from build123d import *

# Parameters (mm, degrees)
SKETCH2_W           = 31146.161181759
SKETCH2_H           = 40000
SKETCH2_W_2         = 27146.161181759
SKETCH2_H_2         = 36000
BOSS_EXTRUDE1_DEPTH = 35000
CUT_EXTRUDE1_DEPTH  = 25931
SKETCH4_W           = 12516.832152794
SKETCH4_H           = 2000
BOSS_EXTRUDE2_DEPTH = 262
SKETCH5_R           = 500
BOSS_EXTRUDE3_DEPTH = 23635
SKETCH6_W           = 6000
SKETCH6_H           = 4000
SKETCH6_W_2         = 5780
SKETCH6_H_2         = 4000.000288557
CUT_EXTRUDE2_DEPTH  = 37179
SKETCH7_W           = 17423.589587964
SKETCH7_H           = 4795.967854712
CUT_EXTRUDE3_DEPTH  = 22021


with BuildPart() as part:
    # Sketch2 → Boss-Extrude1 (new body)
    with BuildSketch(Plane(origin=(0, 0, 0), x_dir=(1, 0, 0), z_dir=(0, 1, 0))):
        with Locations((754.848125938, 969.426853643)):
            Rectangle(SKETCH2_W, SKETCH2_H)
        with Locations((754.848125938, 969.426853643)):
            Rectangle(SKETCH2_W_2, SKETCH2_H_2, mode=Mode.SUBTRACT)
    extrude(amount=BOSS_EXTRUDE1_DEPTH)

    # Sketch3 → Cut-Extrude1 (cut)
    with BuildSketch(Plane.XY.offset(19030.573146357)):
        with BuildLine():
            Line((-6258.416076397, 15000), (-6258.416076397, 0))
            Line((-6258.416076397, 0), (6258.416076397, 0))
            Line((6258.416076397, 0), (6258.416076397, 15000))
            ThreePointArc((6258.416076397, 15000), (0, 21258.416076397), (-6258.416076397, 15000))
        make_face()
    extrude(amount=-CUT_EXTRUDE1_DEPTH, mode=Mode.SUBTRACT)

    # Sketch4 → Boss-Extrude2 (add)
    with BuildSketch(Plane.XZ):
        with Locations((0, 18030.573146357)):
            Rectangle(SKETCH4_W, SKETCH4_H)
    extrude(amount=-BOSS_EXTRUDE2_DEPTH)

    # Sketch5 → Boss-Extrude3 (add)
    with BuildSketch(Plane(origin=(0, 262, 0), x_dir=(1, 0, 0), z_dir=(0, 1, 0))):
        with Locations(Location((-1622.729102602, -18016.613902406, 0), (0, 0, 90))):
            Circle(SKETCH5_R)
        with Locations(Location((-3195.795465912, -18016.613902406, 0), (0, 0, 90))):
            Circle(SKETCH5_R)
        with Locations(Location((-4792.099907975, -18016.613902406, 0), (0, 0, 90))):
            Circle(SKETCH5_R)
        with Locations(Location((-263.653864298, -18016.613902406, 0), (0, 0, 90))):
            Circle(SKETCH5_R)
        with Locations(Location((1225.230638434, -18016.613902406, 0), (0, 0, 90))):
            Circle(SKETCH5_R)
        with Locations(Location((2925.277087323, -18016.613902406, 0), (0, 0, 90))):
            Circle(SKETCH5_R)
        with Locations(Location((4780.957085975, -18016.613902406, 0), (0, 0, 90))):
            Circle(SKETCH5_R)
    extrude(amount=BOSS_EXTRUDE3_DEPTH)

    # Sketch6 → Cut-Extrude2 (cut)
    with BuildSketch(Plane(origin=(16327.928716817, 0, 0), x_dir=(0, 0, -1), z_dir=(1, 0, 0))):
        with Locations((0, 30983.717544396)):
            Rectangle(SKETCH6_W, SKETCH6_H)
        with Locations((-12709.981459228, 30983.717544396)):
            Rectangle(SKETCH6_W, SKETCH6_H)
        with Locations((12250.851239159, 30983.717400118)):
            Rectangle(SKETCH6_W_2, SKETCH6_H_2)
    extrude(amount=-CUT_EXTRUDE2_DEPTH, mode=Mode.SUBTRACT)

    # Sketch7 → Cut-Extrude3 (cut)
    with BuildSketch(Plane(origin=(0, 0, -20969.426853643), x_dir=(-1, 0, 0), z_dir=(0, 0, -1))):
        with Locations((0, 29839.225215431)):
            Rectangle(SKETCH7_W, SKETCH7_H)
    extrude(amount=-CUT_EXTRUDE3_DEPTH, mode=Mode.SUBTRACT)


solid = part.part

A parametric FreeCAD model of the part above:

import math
import FreeCAD as App
import Part
import Sketcher

V = App.Vector
Q = App.Units.Quantity

doc = App.newDocument("Part")
body = doc.addObject("PartDesign::Body", "Body")

sketch1 = body.newObject("Sketcher::SketchObject", "Sketch")
sketch1.AttachmentSupport = (doc.getObject("XZ_Plane"), [""])
sketch1.MapMode = "FlatFace"
sketch1.addGeometry([
    Part.LineSegment(V(-14818, -20969, 0), V(-14818, 19031, 0)),
    Part.LineSegment(V(-14818, 19031, 0), V(16328, 19031, 0)),
    Part.LineSegment(V(16328, 19031, 0), V(16328, -20969, 0)),
    Part.LineSegment(V(16328, -20969, 0), V(-14818, -20969, 0)),
    Part.LineSegment(V(14328, 17031, 0), V(-12818, 17031, 0)),
    Part.LineSegment(V(-12818, 17031, 0), V(-12818, -18969, 0)),
    Part.LineSegment(V(-12818, -18969, 0), V(14328, -18969, 0)),
    Part.LineSegment(V(14328, -18969, 0), V(14328, 17031, 0)),
], False)
sketch1.addConstraint([
    Sketcher.Constraint("Coincident", 0, 2, 1, 1),
    Sketcher.Constraint("Coincident", 1, 2, 2, 1),
    Sketcher.Constraint("Coincident", 2, 2, 3, 1),
    Sketcher.Constraint("Coincident", 3, 2, 0, 1),
    Sketcher.Constraint("Coincident", 4, 2, 5, 1),
    Sketcher.Constraint("Coincident", 5, 2, 6, 1),
    Sketcher.Constraint("Coincident", 6, 2, 7, 1),
    Sketcher.Constraint("Coincident", 7, 2, 4, 1),
    Sketcher.Constraint("Vertical", 0),
    Sketcher.Constraint("Horizontal", 1),
    Sketcher.Constraint("Vertical", 2),
    Sketcher.Constraint("Horizontal", 3),
    Sketcher.Constraint("Horizontal", 4),
    Sketcher.Constraint("Vertical", 5),
    Sketcher.Constraint("Horizontal", 6),
    Sketcher.Constraint("Vertical", 7),
    Sketcher.Constraint("DistanceY", 0, 1, 0, 2, Q("40000 mm")),
    Sketcher.Constraint("DistanceY", 5, 2, 5, 1, Q("36000 mm")),
    Sketcher.Constraint("DistanceX", 0, 2, 4, 2, Q("2000 mm")),
    Sketcher.Constraint("DistanceY", 4, 2, 0, 2, Q("2000 mm")),
    Sketcher.Constraint("DistanceX", 6, 2, 2, 2, Q("2000 mm")),
    Sketcher.Constraint("DistanceX", 1, 1, 1, 2, Q("31146.161182 mm")),
    Sketcher.Constraint("DistanceX", 0, 2, -1, 1, Q("14818.232465 mm")),
    Sketcher.Constraint("DistanceY", -1, 1, 0, 2, Q("19030.573146 mm")),
])
pad1 = body.newObject("PartDesign::Pad", "Pad")
pad1.Profile = sketch1
pad1.Length = 35000
pad1.Reversed = True

sketch2 = body.newObject("Sketcher::SketchObject", "Sketch001")
sketch2.AttachmentSupport = (doc.getObject("XY_Plane"), [""])
sketch2.MapMode = "FlatFace"
sketch2.AttachmentOffset = App.Placement(V(0, 0, 19030.573146), App.Rotation())
sketch2.addGeometry([
    Part.LineSegment(V(-6258, 15000, 0), V(-6258, 0, 0)),
    Part.LineSegment(V(-6258, 0, 0), V(6258, 0, 0)),
    Part.LineSegment(V(6258, 0, 0), V(6258, 15000, 0)),
    Part.ArcOfCircle(Part.Circle(V(0, 15000, 0), V(0, 0, 1), 6258), math.radians(0), math.radians(180)),
], False)
sketch2.addConstraint([
    Sketcher.Constraint("Coincident", 0, 2, 1, 1),
    Sketcher.Constraint("Coincident", 1, 2, 2, 1),
    Sketcher.Constraint("Coincident", 2, 2, 3, 1),
    Sketcher.Constraint("Coincident", 3, 2, 0, 1),
    Sketcher.Constraint("Vertical", 0),
    Sketcher.Constraint("Horizontal", 1),
    Sketcher.Constraint("Vertical", 2),
    Sketcher.Constraint("Symmetric", 0, 2, 1, 2, -1, 1),
    Sketcher.Constraint("Horizontal", 3, 3, 2, 2),
    Sketcher.Constraint("Equal", 0, 2),
    Sketcher.Constraint("DistanceY", 0, 2, 0, 1, Q("15000 mm")),
    Sketcher.Constraint("Radius", 3, Q("6258.416076 mm")),
])
pocket1 = body.newObject("PartDesign::Pocket", "Pocket")
pocket1.Profile = sketch2
pocket1.Length = 25931

sketch3 = body.newObject("Sketcher::SketchObject", "Sketch002")
sketch3.AttachmentSupport = (doc.getObject("XZ_Plane"), [""])
sketch3.MapMode = "FlatFace"
sketch3.addGeometry([
    Part.LineSegment(V(-6258, 19031, 0), V(-6258, 17031, 0)),
    Part.LineSegment(V(-6258, 17031, 0), V(6258, 17031, 0)),
    Part.LineSegment(V(6258, 17031, 0), V(6258, 19031, 0)),
    Part.LineSegment(V(6258, 19031, 0), V(-6258, 19031, 0)),
], False)
sketch3.addConstraint([
    Sketcher.Constraint("Coincident", 0, 2, 1, 1),
    Sketcher.Constraint("Coincident", 1, 2, 2, 1),
    Sketcher.Constraint("Coincident", 2, 2, 3, 1),
    Sketcher.Constraint("Coincident", 3, 2, 0, 1),
    Sketcher.Constraint("Vertical", 0),
    Sketcher.Constraint("Horizontal", 1),
    Sketcher.Constraint("Vertical", 2),
    Sketcher.Constraint("Horizontal", 3),
    Sketcher.Constraint("DistanceY", 0, 2, 0, 1, Q("2000 mm")),
    Sketcher.Constraint("DistanceX", 1, 1, 1, 2, Q("12516.832153 mm")),
    Sketcher.Constraint("DistanceX", 0, 2, -1, 1, Q("6258.416076 mm")),
    Sketcher.Constraint("DistanceY", -1, 1, 0, 2, Q("17030.573146 mm")),
])
pad2 = body.newObject("PartDesign::Pad", "Pad001")
pad2.Profile = sketch3
pad2.Length = 262
pad2.Reversed = True

sketch4 = body.newObject("Sketcher::SketchObject", "Sketch003")
sketch4.AttachmentSupport = (doc.getObject("XZ_Plane"), [""])
sketch4.MapMode = "FlatFace"
sketch4.AttachmentOffset = App.Placement(V(0, 0, -262), App.Rotation())
sketch4.addGeometry([
    Part.Circle(V(-1623, 18017, 0), V(0, 0, 1), 500),
    Part.Circle(V(-3196, 18017, 0), V(0, 0, 1), 500),
    Part.Circle(V(-4792, 18017, 0), V(0, 0, 1), 500),
    Part.Circle(V(-264, 18017, 0), V(0, 0, 1), 500),
    Part.Circle(V(1225, 18017, 0), V(0, 0, 1), 500),
    Part.Circle(V(2925, 18017, 0), V(0, 0, 1), 500),
    Part.Circle(V(4781, 18017, 0), V(0, 0, 1), 500),
], False)
sketch4.addConstraint([
    Sketcher.Constraint("Equal", 0, 1),
    Sketcher.Constraint("Equal", 1, 2),
    Sketcher.Constraint("Equal", 2, 3),
    Sketcher.Constraint("Equal", 3, 4),
    Sketcher.Constraint("Equal", 4, 5),
    Sketcher.Constraint("Equal", 5, 6),
    Sketcher.Constraint("Horizontal", 0, 3, 1, 3),
    Sketcher.Constraint("Horizontal", 1, 3, 2, 3),
    Sketcher.Constraint("Horizontal", 2, 3, 3, 3),
    Sketcher.Constraint("Horizontal", 3, 3, 4, 3),
    Sketcher.Constraint("Horizontal", 4, 3, 5, 3),
    Sketcher.Constraint("Horizontal", 5, 3, 6, 3),
    Sketcher.Constraint("Diameter", 0, Q("1000 mm")),
    Sketcher.Constraint("DistanceX", 5, 3, 6, 3, Q("1855.679999 mm")),
    Sketcher.Constraint("DistanceX", 1, 3, 3, 3, Q("2932.141602 mm")),
    Sketcher.Constraint("DistanceX", -1, 1, 4, 3, Q("1225.230638 mm")),
    Sketcher.Constraint("DistanceX", 0, 3, 3, 3, Q("1359.075238 mm")),
    Sketcher.Constraint("DistanceX", 0, 3, 4, 3, Q("2847.959741 mm")),
    Sketcher.Constraint("DistanceX", 4, 3, 5, 3, Q("1700.046449 mm")),
    Sketcher.Constraint("DistanceY", -1, 1, 0, 3, Q("18016.613902 mm")),
    Sketcher.Constraint("DistanceX", 2, 3, -1, 1, Q("4792.099908 mm")),
])
pad3 = body.newObject("PartDesign::Pad", "Pad002")
pad3.Profile = sketch4
pad3.Length = 23635
pad3.Reversed = True

sketch5 = body.newObject("Sketcher::SketchObject", "Sketch004")
sketch5.AttachmentSupport = (doc.getObject("YZ_Plane"), [""])
sketch5.MapMode = "FlatFace"
sketch5.AttachmentOffset = App.Placement(V(0, 0, 16327.928717), App.Rotation())
sketch5.addGeometry([
    Part.LineSegment(V(32984, 3000, 0), V(28984, 3000, 0)),
    Part.LineSegment(V(28984, 3000, 0), V(28984, -3000, 0)),
    Part.LineSegment(V(28984, -3000, 0), V(32984, -3000, 0)),
    Part.LineSegment(V(32984, -3000, 0), V(32984, 3000, 0)),
    Part.LineSegment(V(32984, 15710, 0), V(28984, 15710, 0)),
    Part.LineSegment(V(28984, 15710, 0), V(28984, 9710, 0)),
    Part.LineSegment(V(28984, 9710, 0), V(32984, 9710, 0)),
    Part.LineSegment(V(32984, 9710, 0), V(32984, 15710, 0)),
    Part.LineSegment(V(32984, -9361, 0), V(28984, -9361, 0)),
    Part.LineSegment(V(28984, -9361, 0), V(28984, -15141, 0)),
    Part.LineSegment(V(28984, -15141, 0), V(32984, -15141, 0)),
    Part.LineSegment(V(32984, -15141, 0), V(32984, -9361, 0)),
], False)
sketch5.addConstraint([
    Sketcher.Constraint("Coincident", 0, 2, 1, 1),
    Sketcher.Constraint("Coincident", 1, 2, 2, 1),
    Sketcher.Constraint("Coincident", 2, 2, 3, 1),
    Sketcher.Constraint("Coincident", 3, 2, 0, 1),
    Sketcher.Constraint("Coincident", 4, 2, 5, 1),
    Sketcher.Constraint("Coincident", 5, 2, 6, 1),
    Sketcher.Constraint("Coincident", 6, 2, 7, 1),
    Sketcher.Constraint("Coincident", 7, 2, 4, 1),
    Sketcher.Constraint("Coincident", 8, 2, 9, 1),
    Sketcher.Constraint("Coincident", 9, 2, 10, 1),
    Sketcher.Constraint("Coincident", 10, 2, 11, 1),
    Sketcher.Constraint("Coincident", 11, 2, 8, 1),
    Sketcher.Constraint("Horizontal", 0),
    Sketcher.Constraint("Vertical", 1),
    Sketcher.Constraint("Horizontal", 2),
    Sketcher.Constraint("Vertical", 3),
    Sketcher.Constraint("Horizontal", 4),
    Sketcher.Constraint("Vertical", 5),
    Sketcher.Constraint("Horizontal", 6),
    Sketcher.Constraint("Vertical", 7),
    Sketcher.Constraint("Horizontal", 8),
    Sketcher.Constraint("Vertical", 9),
    Sketcher.Constraint("Horizontal", 10),
    Sketcher.Constraint("Vertical", 11),
    Sketcher.Constraint("Vertical", 1, 2, 4, 2),
    Sketcher.Constraint("Vertical", 3, 2, 6, 2),
    Sketcher.Constraint("Vertical", 7, 2, 10, 2),
    Sketcher.Constraint("Equal", 3, 5),
    Sketcher.Constraint("DistanceX", 0, 2, 0, 1, Q("4000 mm")),
    Sketcher.Constraint("DistanceY", 1, 2, 1, 1, Q("6000 mm")),
    Sketcher.Constraint("DistanceY", 9, 2, 9, 1, Q("5780 mm")),
    Sketcher.Constraint("DistanceY", -1, 1, 0, 2, Q("3000 mm")),
    Sketcher.Constraint("DistanceX", 8, 2, 8, 1, Q("4000.000289 mm")),
    Sketcher.Constraint("DistanceY", 8, 2, 5, 2, Q("19070.832698 mm")),
    Sketcher.Constraint("DistanceY", -1, 1, 4, 2, Q("15709.981459 mm")),
    Sketcher.Constraint("DistanceX", -1, 1, 0, 2, Q("28983.717544 mm")),
])
pocket2 = body.newObject("PartDesign::Pocket", "Pocket001")
pocket2.Profile = sketch5
pocket2.Length = 37179

sketch6 = body.newObject("Sketcher::SketchObject", "Sketch005")
sketch6.AttachmentSupport = (doc.getObject("XY_Plane"), [""])
sketch6.MapMode = "FlatFace"
sketch6.AttachmentOffset = App.Placement(V(0, 0, -20969.426854), App.Rotation())
sketch6.addGeometry([
    Part.LineSegment(V(8712, 32237, 0), V(8712, 27441, 0)),
    Part.LineSegment(V(8712, 27441, 0), V(-8712, 27441, 0)),
    Part.LineSegment(V(-8712, 27441, 0), V(-8712, 32237, 0)),
    Part.LineSegment(V(-8712, 32237, 0), V(8712, 32237, 0)),
], False)
sketch6.addConstraint([
    Sketcher.Constraint("Coincident", 0, 2, 1, 1),
    Sketcher.Constraint("Coincident", 1, 2, 2, 1),
    Sketcher.Constraint("Coincident", 2, 2, 3, 1),
    Sketcher.Constraint("Coincident", 3, 2, 0, 1),
    Sketcher.Constraint("Vertical", 0),
    Sketcher.Constraint("Horizontal", 1),
    Sketcher.Constraint("Vertical", 2),
    Sketcher.Constraint("Horizontal", 3),
    Sketcher.Constraint("DistanceX", 1, 2, 1, 1, Q("17423.589588 mm")),
    Sketcher.Constraint("DistanceY", 0, 2, 0, 1, Q("4795.967855 mm")),
    Sketcher.Constraint("DistanceY", -1, 1, 0, 2, Q("27441.241288 mm")),
    Sketcher.Constraint("DistanceX", -1, 1, 0, 2, Q("8711.794794 mm")),
])
pocket3 = body.newObject("PartDesign::Pocket", "Pocket002")
pocket3.Profile = sketch6
pocket3.Length = 22021
pocket3.Reversed = True

doc.recompute()
